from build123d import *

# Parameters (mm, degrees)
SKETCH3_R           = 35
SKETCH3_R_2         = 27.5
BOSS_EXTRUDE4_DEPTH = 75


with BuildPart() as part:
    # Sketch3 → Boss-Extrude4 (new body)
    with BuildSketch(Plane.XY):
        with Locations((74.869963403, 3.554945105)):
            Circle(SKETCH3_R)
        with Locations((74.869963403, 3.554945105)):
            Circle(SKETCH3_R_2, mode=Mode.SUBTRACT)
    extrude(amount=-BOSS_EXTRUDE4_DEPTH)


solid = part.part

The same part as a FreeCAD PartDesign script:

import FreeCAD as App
import Part
import Sketcher

V = App.Vector
Q = App.Units.Quantity

doc = App.newDocument("Part")
body = doc.addObject("PartDesign::Body", "Body")

# Sketch on XY plane
sketch1 = body.newObject("Sketcher::SketchObject", "Sketch")
sketch1.AttachmentSupport = (doc.getObject("XY_Plane"), [""])
sketch1.MapMode = "FlatFace"
sketch1.addGeometry([
    Part.Circle(V(75, 4, 0), V(0, 0, 1), 35),
    Part.Circle(V(75, 4, 0), V(0, 0, 1), 28),
], False)
sketch1.addConstraint([
    Sketcher.Constraint("Coincident", 1, 3, 0, 3),
    Sketcher.Constraint("Diameter", 0, Q("70 mm")),
    Sketcher.Constraint("Diameter", 1, Q("55 mm")),
    Sketcher.Constraint("DistanceX", -1, 1, 0, 3, Q("74.869963 mm")),
    Sketcher.Constraint("DistanceY", -1, 1, 0, 3, Q("3.554945 mm")),
])
pad1 = body.newObject("PartDesign::Pad", "Pad")
pad1.Profile = sketch1
pad1.Length = 75
pad1.Reversed = True

doc.recompute()
